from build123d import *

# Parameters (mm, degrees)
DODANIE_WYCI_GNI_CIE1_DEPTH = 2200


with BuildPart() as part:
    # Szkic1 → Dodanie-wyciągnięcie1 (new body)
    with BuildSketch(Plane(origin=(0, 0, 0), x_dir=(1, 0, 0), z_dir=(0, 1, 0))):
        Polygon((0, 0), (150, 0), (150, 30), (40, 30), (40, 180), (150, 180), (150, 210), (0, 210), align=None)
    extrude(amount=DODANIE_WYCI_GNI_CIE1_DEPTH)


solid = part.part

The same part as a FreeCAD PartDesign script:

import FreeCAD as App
import Part
import Sketcher
from FreeCAD import Vector


def add_polygon(sketch, points):
    """Adds a closed chain of lines whose ends are joined by coincident constraints."""
    first, n = sketch.GeometryCount, len(points)
    for a, b in zip(points, points[1:] + points[:1]):
        sketch.addGeometry(Part.LineSegment(App.Vector(*a, 0), App.Vector(*b, 0)), False)
    for i in range(n):
        sketch.addConstraint(Sketcher.Constraint("Coincident", first + i, 2, first + (i + 1) % n, 1))

doc = App.newDocument("Part")
params = doc.addObject("Spreadsheet::Sheet", "Params")
for row, (alias, value) in enumerate([
    ("sketch1_width", "150 mm"),
    ("sketch1_width2", "110 mm"),
    ("sketch1_height", "30 mm"),
    ("pad1_length", "2200 mm"),
], start=1):
    params.set(f"A{row}", alias)
    params.set(f"B{row}", "=" + value)
    params.setAlias(f"B{row}", alias)

body = doc.addObject("PartDesign::Body", "Body")

# Sketch on XZ plane
sketch1 = doc.addObject("Sketcher::SketchObject", "Sketch")
body.addObject(sketch1)
sketch1.AttachmentSupport = (doc.XZ_Plane, [""])
sketch1.MapMode = "FlatFace"
add_polygon(sketch1, [(0, 0), (150, 0), (150, -30), (40, -30), (40, -180), (150, -180), (150, -210), (0, -210)])  # lines 0-7
sketch1.addConstraint([
    Sketcher.Constraint("Horizontal", 0),
    Sketcher.Constraint("Vertical", 1),
    Sketcher.Constraint("Horizontal", 2),
    Sketcher.Constraint("Vertical", 3),
    Sketcher.Constraint("Horizontal", 4),
    Sketcher.Constraint("Vertical", 5),
    Sketcher.Constraint("Horizontal", 6),
    Sketcher.Constraint("Vertical", 7),
    Sketcher.Constraint("Coincident", 7, 2, -1, 1),
    Sketcher.Constraint("Vertical", 1, 2, 4, 2),
    Sketcher.Constraint("Equal", 6, 3),
    Sketcher.Constraint("Equal", 1, 5),
    Sketcher.Constraint("DistanceX", 0, 1, 0, 2, 150.0),
    Sketcher.Constraint("DistanceX", 2, 2, 2, 1, 110.0),
    Sketcher.Constraint("DistanceY", 1, 2, 1, 1, 30.0),
])
sketch1.setExpression("Constraints[20]", "Params.sketch1_width")
sketch1.setExpression("Constraints[21]", "Params.sketch1_width2")
sketch1.setExpression("Constraints[22]", "Params.sketch1_height")
pad1 = doc.addObject("PartDesign::Pad", "Pad")
body.addObject(pad1)
pad1.Profile = sketch1
pad1.setExpression("Length", "Params.pad1_length")
pad1.Reversed = True

doc.recompute()
